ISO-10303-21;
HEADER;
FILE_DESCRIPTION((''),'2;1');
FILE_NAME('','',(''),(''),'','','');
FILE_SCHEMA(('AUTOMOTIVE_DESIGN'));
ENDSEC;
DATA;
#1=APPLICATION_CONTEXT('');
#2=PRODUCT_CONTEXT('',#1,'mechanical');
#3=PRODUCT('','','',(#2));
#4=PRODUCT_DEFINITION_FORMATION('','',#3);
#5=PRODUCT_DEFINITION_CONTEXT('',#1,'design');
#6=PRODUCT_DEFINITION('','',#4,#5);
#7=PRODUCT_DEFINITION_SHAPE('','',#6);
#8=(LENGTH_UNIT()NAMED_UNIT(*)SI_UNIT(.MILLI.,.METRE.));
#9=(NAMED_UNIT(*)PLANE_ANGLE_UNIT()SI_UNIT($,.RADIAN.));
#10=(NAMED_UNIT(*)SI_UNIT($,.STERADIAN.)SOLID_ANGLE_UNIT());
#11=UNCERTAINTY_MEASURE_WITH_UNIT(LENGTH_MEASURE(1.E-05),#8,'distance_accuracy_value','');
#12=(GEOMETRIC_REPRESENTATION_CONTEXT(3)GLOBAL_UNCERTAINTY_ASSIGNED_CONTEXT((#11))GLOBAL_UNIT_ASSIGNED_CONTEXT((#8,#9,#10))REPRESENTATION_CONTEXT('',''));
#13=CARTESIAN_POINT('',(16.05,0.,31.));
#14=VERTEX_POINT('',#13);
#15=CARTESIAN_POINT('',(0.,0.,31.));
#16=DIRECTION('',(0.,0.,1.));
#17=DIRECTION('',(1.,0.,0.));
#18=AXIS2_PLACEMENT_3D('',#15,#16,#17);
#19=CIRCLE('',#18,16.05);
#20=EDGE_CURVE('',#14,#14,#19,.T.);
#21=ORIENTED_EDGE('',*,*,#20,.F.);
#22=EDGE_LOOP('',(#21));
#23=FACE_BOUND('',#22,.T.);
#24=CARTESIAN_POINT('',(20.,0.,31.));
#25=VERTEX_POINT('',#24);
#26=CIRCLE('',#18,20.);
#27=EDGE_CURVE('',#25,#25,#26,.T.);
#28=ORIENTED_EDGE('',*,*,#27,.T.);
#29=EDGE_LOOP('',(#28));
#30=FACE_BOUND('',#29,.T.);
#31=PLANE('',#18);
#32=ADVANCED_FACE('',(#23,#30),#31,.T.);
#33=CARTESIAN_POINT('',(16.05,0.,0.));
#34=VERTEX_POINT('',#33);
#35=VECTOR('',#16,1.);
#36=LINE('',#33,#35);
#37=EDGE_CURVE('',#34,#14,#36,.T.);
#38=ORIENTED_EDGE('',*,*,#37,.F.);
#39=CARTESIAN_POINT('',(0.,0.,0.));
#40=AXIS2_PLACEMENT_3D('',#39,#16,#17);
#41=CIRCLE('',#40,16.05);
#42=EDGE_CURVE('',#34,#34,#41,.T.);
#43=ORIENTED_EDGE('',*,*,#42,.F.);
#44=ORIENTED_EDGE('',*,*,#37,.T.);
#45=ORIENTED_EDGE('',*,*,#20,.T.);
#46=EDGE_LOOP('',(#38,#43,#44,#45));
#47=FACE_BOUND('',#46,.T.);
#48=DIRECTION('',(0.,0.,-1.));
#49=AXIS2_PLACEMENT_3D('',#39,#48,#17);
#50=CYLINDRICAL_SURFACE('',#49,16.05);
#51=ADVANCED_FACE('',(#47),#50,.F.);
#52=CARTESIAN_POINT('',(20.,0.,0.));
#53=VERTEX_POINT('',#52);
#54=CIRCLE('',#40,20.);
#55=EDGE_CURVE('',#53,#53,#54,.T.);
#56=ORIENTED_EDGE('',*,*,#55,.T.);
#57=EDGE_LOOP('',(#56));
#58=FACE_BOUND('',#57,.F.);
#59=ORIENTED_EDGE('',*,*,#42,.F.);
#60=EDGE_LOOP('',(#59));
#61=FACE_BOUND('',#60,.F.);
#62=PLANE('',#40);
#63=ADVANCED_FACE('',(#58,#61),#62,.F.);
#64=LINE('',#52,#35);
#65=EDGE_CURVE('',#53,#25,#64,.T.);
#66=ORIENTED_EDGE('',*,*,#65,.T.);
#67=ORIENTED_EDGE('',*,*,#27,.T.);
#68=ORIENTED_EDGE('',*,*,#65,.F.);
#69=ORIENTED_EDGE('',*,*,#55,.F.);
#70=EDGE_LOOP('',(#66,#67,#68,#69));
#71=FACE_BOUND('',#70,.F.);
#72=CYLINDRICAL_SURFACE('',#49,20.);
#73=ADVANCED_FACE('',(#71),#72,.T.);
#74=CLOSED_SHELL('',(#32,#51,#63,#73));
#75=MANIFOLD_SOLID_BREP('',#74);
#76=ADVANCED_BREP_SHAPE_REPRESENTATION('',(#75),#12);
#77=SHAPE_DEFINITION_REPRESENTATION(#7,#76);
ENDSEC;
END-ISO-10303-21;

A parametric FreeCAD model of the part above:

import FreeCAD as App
import Part
import Sketcher

V = App.Vector
Q = App.Units.Quantity

doc = App.newDocument("Part")
body = doc.addObject("PartDesign::Body", "Body")

# Sketch on XY plane
sketch1 = body.newObject("Sketcher::SketchObject", "Sketch")
sketch1.AttachmentSupport = (doc.getObject("XY_Plane"), [""])
sketch1.MapMode = "FlatFace"
sketch1.addGeometry(Part.Circle(V(0, 0, 0), V(0, 0, 1), 20), False)
sketch1.addGeometry(Part.Circle(V(0, 0, 0), V(0, 0, 1), 16.05), False)
sketch1.addConstraint(Sketcher.Constraint("Coincident", 0, 3, -1, 1))
sketch1.addConstraint(Sketcher.Constraint("Coincident", 1, 3, -1, 1))
sketch1.addConstraint(Sketcher.Constraint("Diameter", 0, Q("40 mm")))
sketch1.addConstraint(Sketcher.Constraint("Diameter", 1, Q("32.1 mm")))
pad1 = body.newObject("PartDesign::Pad", "Pad")
pad1.Profile = sketch1
pad1.Length = 31

doc.recompute()
